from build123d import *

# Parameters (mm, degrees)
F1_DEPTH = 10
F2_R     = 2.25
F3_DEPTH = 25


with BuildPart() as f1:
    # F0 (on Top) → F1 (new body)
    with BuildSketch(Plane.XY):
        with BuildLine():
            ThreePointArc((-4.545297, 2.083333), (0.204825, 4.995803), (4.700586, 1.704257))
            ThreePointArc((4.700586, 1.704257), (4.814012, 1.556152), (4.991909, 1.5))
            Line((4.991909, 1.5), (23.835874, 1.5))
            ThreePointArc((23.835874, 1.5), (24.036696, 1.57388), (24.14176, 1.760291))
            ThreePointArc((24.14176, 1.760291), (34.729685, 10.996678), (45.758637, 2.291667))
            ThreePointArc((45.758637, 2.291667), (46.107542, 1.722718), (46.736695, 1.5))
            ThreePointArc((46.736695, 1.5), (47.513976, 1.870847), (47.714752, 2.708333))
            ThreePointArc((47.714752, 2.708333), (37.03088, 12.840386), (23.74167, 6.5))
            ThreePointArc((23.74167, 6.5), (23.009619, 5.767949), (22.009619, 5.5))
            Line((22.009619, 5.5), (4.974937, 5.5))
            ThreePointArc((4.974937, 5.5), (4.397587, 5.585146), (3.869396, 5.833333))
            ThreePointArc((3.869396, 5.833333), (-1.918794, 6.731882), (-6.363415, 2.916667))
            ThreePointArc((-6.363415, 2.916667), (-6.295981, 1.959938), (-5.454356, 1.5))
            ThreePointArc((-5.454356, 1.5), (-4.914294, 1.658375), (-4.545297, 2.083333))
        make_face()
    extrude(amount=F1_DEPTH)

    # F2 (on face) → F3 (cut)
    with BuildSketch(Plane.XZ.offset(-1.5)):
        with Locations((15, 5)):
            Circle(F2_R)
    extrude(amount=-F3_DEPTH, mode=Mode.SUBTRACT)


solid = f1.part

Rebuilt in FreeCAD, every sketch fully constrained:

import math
import FreeCAD as App
import Part
import Sketcher

V = App.Vector
Q = App.Units.Quantity

doc = App.newDocument("Part")
params = doc.addObject("Spreadsheet::Sheet", "Params")
for row, (alias, value) in enumerate([
    ("sketch1_radius", "5 mm"),
    ("sketch1_radius2", "11 mm"),
    ("sketch1_radius3", "0.999999 mm"),
    ("sketch1_radius4", "2 mm"),
    ("pad1_length", "10 mm"),
    ("sketch2_diameter", "4.5 mm"),
    ("pocket1_length", "25 mm"),
], start=1):
    params.set(f"A{row}", alias)
    params.set(f"B{row}", "=" + value)
    params.setAlias(f"B{row}", alias)

body = doc.addObject("PartDesign::Body", "Body")

# Sketch on XY plane
sketch1 = body.newObject("Sketcher::SketchObject", "Sketch")
sketch1.AttachmentSupport = (doc.getObject("XY_Plane"), [""])
sketch1.MapMode = "FlatFace"
sketch1.addGeometry(Part.ArcOfCircle(Part.Circle(V(0, 0, 0), V(0, 0, 1), 5), math.radians(19.928754), math.radians(155.375686)), False)
sketch1.addGeometry(Part.ArcOfCircle(Part.Circle(V(4.99191, 1.809881, 0), V(0, 0, 1), 0.309881), math.radians(-160.071075), math.radians(-90.000274)), False)
sketch1.addGeometry(Part.LineSegment(V(4.991909, 1.5, 0), V(23.835874, 1.5, 0)), False)
sketch1.addGeometry(Part.ArcOfCircle(Part.Circle(V(23.835874, 1.80988, 0), V(0, 0, 1), 0.30988), math.radians(-89.999957), math.radians(-9.208385)), False)
sketch1.addGeometry(Part.ArcOfCircle(Part.Circle(V(35, 0, 0), V(0, 0, 1), 11), math.radians(12.024703), math.radians(170.791566)), False)
sketch1.addGeometry(Part.ArcOfCircle(Part.Circle(V(46.736694, 2.499999, 0), V(0, 0, 1), 0.999999), math.radians(-167.975381), math.radians(-89.999937)), False)
sketch1.addGeometry(Part.ArcOfCircle(Part.Circle(V(46.736695, 2.499999, 0), V(0, 0, 1), 0.999999), math.radians(-89.999989), math.radians(12.024724)), False)
sketch1.addGeometry(Part.ArcOfCircle(Part.Circle(V(35, 0, 0), V(0, 0, 1), 13), math.radians(12.024699), math.radians(149.999998)), False)
sketch1.addGeometry(Part.ArcOfCircle(Part.Circle(V(22.009619, 7.5, 0), V(0, 0, 1), 2), math.radians(-90.000013), math.radians(-29.999992)), False)
sketch1.addGeometry(Part.LineSegment(V(22.009619, 5.5, 0), V(4.974937, 5.5, 0)), False)
sketch1.addGeometry(Part.ArcOfCircle(Part.Circle(V(4.974939, 7.500006, 0), V(0, 0, 1), 2.000006), math.radians(-123.557243), math.radians(-90.000053)), False)
sketch1.addGeometry(Part.ArcOfCircle(Part.Circle(V(0, 0.000002, 0), V(0, 0, 1), 6.999999), math.radians(56.442677), math.radians(155.375688)), False)
sketch1.addGeometry(Part.ArcOfCircle(Part.Circle(V(-5.454356, 2.5, 0), V(0, 0, 1), 1), math.radians(155.375665), math.radians(269.999985)), False)
sketch1.addGeometry(Part.ArcOfCircle(Part.Circle(V(-5.454357, 2.500001, 0), V(0, 0, 1), 1.000001), math.radians(-89.999971), math.radians(-24.624358)), False)
sketch1.addConstraint(Sketcher.Constraint("Coincident", 0, 1, 1, 1))
sketch1.addConstraint(Sketcher.Constraint("Coincident", 1, 2, 2, 1))
sketch1.addConstraint(Sketcher.Constraint("Tangent", 2, 2, 3, 1))
sketch1.addConstraint(Sketcher.Constraint("Tangent", 3, 2, 4, 2))
sketch1.addConstraint(Sketcher.Constraint("Tangent", 4, 1, 5, 1))
sketch1.addConstraint(Sketcher.Constraint("Tangent", 5, 2, 6, 1))
sketch1.addConstraint(Sketcher.Constraint("Tangent", 6, 2, 7, 1))
sketch1.addConstraint(Sketcher.Constraint("Tangent", 7, 2, 8, 2))
sketch1.addConstraint(Sketcher.Constraint("Tangent", 8, 1, 9, 1))
sketch1.addConstraint(Sketcher.Constraint("Tangent", 9, 2, 10, 2))
sketch1.addConstraint(Sketcher.Constraint("Tangent", 10, 1, 11, 1))
sketch1.addConstraint(Sketcher.Constraint("Tangent", 11, 2, 12, 1))
sketch1.addConstraint(Sketcher.Constraint("Tangent", 12, 2, 13, 1))
sketch1.addConstraint(Sketcher.Constraint("Tangent", 13, 2, 0, 2))
sketch1.addConstraint(Sketcher.Constraint("Horizontal", 2))
sketch1.addConstraint(Sketcher.Constraint("Horizontal", 9))
sketch1.addConstraint(Sketcher.Constraint("Coincident", 0, 3, -1, 1))
sketch1.addConstraint(Sketcher.Constraint("Coincident", 11, 3, -1, 1))
sketch1.addConstraint(Sketcher.Constraint("Coincident", 7, 3, 4, 3))
sketch1.addConstraint(Sketcher.Constraint("Equal", 1, 3))
sketch1.addConstraint(Sketcher.Constraint("Equal", 5, 6))
sketch1.addConstraint(Sketcher.Constraint("Equal", 6, 12))
sketch1.addConstraint(Sketcher.Constraint("Equal", 12, 13))
sketch1.addConstraint(Sketcher.Constraint("PointOnObject", 4, 3, -1))
sketch1.addConstraint(Sketcher.Constraint("Horizontal", 6, 3, 12, 3))
sketch1.addConstraint(Sketcher.Constraint("Horizontal", 2, 2, 5, 2))
sketch1.addConstraint(Sketcher.Constraint("Vertical", 6, 3, 5, 2))
sketch1.addConstraint(Sketcher.Constraint("Vertical", 13, 3, 12, 2))
sketch1.addConstraint(Sketcher.Constraint("Radius", 0, Q("5 mm")))
sketch1.addConstraint(Sketcher.Constraint("Radius", 4, Q("11 mm")))
sketch1.addConstraint(Sketcher.Constraint("Radius", 5, Q("0.999999 mm")))
sketch1.addConstraint(Sketcher.Constraint("Radius", 8, Q("2 mm")))
sketch1.addConstraint(Sketcher.Constraint("DistanceX", -1, 1, 4, 3, Q("35 mm")))
sketch1.addConstraint(Sketcher.Constraint("DistanceY", 12, 3, 8, 3, Q("5 mm")))
sketch1.addConstraint(Sketcher.Constraint("DistanceY", 7, 2, 8, 3, Q("1 mm")))
sketch1.addConstraint(Sketcher.Constraint("Radius", 1, Q("0.309881 mm")))
sketch1.addConstraint(Sketcher.Constraint("Radius", 10, Q("2.000006 mm")))
sketch1.addConstraint(Sketcher.Constraint("DistanceX", 2, 1, 2, 2, Q("18.843965 mm")))
sketch1.addConstraint(Sketcher.Constraint("DistanceY", 0, 1, 10, 3, Q("5.795749 mm")))
sketch1.setExpression("Constraints[28]", "Params.sketch1_radius")
sketch1.setExpression("Constraints[29]", "Params.sketch1_radius2")
sketch1.setExpression("Constraints[30]", "Params.sketch1_radius3")
sketch1.setExpression("Constraints[31]", "Params.sketch1_radius4")
pad1 = body.newObject("PartDesign::Pad", "Pad")
pad1.Profile = sketch1
pad1.setExpression("Length", "Params.pad1_length")

# Sketch on XZ plane
sketch2 = body.newObject("Sketcher::SketchObject", "Sketch001")
sketch2.AttachmentSupport = (doc.getObject("XZ_Plane"), [""])
sketch2.MapMode = "FlatFace"
sketch2.AttachmentOffset = App.Placement(V(0, 0, -1.5), App.Rotation())
sketch2.addGeometry(Part.Circle(V(15, 5, 0), V(0, 0, 1), 2.25), False)
sketch2.addConstraint(Sketcher.Constraint("Diameter", 0, Q("4.5 mm")))
sketch2.addConstraint(Sketcher.Constraint("DistanceX", -1, 1, 0, 3, Q("15 mm")))
sketch2.addConstraint(Sketcher.Constraint("DistanceY", -1, 1, 0, 3, Q("5 mm")))
sketch2.setExpression("Constraints[0]", "Params.sketch2_diameter")
pocket1 = body.newObject("PartDesign::Pocket", "Pocket")
pocket1.Profile = sketch2
pocket1.setExpression("Length", "Params.pocket1_length")

doc.recompute()
